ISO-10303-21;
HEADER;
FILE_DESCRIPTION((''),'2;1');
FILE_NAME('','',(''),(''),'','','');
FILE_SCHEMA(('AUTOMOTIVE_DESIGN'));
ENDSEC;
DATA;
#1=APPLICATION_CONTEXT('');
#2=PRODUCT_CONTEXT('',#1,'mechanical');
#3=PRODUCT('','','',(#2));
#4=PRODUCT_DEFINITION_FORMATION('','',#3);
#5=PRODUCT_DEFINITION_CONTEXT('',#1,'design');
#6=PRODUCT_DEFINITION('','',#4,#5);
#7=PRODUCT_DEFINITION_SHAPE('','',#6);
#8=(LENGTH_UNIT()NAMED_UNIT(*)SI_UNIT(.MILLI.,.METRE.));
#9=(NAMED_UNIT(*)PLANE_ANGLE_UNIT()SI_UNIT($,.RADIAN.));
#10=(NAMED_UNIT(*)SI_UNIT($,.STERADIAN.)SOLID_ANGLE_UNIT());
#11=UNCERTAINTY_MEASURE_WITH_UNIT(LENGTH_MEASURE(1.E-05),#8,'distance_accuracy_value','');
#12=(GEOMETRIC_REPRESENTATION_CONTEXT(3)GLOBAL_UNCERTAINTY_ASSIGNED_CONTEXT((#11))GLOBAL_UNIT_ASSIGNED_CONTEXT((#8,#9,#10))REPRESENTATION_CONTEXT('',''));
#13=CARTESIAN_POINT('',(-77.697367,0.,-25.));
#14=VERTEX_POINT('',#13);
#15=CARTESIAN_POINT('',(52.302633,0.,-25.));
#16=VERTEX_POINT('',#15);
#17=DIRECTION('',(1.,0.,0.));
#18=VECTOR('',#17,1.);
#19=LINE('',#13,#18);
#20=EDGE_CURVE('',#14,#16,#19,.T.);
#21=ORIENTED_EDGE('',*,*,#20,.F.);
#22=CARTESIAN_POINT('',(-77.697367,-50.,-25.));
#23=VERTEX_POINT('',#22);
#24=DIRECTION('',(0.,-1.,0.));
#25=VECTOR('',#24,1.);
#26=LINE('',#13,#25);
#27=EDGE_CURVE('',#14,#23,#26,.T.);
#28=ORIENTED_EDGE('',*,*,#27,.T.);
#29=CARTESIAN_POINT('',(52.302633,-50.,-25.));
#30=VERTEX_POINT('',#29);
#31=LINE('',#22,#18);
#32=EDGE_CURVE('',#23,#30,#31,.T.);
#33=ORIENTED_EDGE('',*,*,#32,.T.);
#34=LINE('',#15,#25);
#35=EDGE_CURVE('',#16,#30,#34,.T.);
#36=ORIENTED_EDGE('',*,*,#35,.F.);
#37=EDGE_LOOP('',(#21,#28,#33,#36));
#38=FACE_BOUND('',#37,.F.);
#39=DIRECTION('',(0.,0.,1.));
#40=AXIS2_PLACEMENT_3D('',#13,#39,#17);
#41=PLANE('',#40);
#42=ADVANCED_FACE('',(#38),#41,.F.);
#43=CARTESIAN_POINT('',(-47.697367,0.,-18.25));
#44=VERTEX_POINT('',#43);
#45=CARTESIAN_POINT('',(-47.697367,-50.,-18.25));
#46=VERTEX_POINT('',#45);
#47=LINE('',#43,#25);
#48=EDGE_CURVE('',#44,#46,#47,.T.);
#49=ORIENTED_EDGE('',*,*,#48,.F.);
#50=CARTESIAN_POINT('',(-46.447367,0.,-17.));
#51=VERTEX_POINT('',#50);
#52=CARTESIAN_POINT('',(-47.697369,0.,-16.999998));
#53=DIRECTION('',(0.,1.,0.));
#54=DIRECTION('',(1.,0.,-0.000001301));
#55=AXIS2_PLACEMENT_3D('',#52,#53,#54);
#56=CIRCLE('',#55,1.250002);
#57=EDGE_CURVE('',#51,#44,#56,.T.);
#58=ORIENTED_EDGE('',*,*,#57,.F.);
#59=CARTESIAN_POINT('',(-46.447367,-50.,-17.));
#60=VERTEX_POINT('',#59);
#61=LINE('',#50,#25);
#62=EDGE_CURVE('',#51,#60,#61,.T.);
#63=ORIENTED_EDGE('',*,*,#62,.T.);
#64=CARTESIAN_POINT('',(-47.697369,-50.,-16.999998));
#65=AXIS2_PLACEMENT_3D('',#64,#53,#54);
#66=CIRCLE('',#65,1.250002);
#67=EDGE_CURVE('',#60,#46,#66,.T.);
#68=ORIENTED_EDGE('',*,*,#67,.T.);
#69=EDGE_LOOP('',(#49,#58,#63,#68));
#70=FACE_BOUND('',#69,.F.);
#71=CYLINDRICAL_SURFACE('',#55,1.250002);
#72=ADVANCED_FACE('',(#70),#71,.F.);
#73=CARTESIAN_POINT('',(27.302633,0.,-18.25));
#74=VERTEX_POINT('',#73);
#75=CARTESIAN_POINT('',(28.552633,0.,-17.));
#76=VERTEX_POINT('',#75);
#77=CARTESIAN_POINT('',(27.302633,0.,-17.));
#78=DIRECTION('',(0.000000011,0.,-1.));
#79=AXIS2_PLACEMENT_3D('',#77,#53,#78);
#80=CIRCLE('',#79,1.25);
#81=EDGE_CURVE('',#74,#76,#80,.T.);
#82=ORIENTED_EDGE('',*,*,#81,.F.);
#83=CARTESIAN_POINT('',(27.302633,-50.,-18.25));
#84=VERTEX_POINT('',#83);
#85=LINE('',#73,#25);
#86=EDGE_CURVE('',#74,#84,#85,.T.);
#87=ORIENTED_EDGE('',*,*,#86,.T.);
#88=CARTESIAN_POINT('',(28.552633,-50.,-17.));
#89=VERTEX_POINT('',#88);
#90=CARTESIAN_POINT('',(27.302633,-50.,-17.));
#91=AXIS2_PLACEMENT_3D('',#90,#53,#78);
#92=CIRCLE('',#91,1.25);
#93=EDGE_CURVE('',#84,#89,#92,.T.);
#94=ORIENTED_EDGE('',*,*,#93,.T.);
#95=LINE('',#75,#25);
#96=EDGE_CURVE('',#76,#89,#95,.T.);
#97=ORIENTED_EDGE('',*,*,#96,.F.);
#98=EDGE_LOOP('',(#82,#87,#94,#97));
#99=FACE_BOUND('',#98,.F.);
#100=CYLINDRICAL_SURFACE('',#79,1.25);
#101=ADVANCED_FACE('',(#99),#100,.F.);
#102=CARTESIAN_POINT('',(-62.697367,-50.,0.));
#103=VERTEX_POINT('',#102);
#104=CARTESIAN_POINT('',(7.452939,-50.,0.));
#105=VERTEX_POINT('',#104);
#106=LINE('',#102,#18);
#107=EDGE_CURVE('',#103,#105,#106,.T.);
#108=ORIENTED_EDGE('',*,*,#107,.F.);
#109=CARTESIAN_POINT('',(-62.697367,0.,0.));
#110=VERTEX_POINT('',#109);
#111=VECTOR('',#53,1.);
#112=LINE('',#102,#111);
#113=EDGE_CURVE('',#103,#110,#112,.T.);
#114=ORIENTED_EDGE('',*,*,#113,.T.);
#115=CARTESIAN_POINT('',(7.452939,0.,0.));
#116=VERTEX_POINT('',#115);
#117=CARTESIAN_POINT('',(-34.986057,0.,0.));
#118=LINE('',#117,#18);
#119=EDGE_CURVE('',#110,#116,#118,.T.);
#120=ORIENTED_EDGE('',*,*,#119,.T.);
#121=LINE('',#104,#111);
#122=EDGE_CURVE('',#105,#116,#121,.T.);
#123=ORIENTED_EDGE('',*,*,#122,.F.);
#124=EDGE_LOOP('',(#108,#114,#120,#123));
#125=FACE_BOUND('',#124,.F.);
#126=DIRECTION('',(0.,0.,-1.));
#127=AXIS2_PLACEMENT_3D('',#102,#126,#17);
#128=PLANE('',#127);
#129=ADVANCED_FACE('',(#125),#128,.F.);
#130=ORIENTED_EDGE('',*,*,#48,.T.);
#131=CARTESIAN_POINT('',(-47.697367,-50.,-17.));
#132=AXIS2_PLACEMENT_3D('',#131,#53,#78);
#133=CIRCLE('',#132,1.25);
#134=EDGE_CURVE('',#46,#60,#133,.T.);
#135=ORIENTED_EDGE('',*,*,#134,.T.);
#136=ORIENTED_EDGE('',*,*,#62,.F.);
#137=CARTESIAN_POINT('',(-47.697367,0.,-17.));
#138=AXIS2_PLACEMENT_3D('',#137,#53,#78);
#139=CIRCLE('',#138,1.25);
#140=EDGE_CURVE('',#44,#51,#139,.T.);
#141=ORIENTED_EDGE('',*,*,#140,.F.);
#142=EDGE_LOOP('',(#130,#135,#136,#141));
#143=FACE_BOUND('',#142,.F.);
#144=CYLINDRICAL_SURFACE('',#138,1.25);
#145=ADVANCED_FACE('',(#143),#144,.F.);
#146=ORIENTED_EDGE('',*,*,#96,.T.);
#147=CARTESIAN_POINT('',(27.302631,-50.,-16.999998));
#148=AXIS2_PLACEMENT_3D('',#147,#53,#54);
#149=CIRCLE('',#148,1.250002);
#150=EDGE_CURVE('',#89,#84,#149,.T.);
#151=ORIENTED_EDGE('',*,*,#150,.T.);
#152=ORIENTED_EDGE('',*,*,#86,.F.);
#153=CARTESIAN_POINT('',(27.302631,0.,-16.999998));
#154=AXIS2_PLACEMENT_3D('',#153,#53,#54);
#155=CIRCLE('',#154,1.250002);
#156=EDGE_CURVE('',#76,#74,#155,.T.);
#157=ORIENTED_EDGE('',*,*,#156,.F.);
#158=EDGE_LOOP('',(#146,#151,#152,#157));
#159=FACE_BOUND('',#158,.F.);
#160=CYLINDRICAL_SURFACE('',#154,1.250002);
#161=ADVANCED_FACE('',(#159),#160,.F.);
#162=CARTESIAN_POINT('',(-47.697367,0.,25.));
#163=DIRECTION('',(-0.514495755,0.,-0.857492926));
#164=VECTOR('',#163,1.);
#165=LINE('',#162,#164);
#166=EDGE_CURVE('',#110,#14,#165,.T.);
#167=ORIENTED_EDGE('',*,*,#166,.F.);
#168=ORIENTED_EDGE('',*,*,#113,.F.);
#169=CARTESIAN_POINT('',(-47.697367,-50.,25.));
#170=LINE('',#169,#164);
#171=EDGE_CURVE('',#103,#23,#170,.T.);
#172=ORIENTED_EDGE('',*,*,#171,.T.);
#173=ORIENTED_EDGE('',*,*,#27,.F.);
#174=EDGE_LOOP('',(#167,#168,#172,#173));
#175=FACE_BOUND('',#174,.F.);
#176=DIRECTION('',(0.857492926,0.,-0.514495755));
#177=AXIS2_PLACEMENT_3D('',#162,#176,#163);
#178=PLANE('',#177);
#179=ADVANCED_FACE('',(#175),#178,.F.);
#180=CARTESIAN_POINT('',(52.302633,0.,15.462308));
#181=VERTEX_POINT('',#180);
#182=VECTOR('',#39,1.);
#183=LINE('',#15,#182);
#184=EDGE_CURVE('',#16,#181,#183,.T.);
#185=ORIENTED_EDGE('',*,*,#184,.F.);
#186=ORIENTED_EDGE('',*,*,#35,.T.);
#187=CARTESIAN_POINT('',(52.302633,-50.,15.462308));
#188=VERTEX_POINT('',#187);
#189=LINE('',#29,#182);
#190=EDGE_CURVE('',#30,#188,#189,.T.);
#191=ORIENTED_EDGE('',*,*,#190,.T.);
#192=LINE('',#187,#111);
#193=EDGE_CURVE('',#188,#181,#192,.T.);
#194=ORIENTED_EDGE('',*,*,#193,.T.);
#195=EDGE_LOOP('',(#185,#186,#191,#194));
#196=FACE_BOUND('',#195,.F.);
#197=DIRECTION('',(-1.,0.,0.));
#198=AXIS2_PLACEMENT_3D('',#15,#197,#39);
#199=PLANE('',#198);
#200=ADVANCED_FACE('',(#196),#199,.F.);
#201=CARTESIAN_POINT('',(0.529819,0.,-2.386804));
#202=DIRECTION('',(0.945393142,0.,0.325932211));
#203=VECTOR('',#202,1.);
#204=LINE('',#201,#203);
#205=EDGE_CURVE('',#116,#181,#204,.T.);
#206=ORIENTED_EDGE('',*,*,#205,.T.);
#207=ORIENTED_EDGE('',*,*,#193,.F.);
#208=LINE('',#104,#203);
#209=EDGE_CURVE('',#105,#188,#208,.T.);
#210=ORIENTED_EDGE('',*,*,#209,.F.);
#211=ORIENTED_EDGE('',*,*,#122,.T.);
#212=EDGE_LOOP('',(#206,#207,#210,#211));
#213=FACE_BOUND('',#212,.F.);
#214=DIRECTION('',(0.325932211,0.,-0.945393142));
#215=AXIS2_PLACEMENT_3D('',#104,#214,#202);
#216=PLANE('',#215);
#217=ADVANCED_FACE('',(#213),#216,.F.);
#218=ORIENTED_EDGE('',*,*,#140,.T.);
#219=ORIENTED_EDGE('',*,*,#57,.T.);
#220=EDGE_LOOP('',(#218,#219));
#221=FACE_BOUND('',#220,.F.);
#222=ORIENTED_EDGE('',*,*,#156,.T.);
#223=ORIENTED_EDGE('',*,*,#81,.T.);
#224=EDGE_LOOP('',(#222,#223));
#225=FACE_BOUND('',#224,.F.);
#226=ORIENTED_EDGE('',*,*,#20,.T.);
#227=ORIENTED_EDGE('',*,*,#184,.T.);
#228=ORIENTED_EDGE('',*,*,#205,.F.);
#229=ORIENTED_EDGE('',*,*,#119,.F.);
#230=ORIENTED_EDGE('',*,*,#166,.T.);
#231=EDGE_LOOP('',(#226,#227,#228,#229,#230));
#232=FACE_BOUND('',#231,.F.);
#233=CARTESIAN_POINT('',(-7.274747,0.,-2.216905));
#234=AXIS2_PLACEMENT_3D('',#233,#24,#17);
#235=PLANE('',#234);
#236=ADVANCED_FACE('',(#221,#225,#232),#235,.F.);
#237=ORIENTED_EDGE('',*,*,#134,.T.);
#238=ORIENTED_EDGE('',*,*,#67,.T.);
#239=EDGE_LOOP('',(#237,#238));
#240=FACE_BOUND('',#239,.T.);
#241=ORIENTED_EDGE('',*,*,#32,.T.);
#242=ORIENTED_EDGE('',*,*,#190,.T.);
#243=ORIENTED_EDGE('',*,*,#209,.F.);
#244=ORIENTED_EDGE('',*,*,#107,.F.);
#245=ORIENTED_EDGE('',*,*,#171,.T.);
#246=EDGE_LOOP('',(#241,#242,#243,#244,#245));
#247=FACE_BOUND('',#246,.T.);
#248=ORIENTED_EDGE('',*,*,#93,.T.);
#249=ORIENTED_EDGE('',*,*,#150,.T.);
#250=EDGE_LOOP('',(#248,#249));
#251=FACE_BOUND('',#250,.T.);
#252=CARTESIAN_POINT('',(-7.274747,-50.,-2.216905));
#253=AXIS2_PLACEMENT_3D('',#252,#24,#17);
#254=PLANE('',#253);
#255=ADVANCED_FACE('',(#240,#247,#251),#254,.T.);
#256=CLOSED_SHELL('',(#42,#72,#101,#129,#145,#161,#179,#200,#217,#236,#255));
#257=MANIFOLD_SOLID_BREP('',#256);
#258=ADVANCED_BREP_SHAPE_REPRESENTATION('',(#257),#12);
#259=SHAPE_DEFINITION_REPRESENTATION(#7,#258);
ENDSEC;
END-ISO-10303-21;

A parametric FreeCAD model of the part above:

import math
import FreeCAD as App
import Part
import Sketcher
from FreeCAD import Vector


def add_polygon(sketch, points):
    """Adds a closed chain of lines whose ends are joined by coincident constraints."""
    first, n = sketch.GeometryCount, len(points)
    for a, b in zip(points, points[1:] + points[:1]):
        sketch.addGeometry(Part.LineSegment(App.Vector(*a, 0), App.Vector(*b, 0)), False)
    for i in range(n):
        sketch.addConstraint(Sketcher.Constraint("Coincident", first + i, 2, first + (i + 1) % n, 1))

doc = App.newDocument("Part")
params = doc.addObject("Spreadsheet::Sheet", "Params")
for row, (alias, value) in enumerate([
    ("sketch1_width", "100 mm"),
    ("sketch1_width2", "130 mm"),
    ("sketch1_height", "50 mm"),
    ("sketch1_radius", "1.250002 mm"),
    ("pad1_length", "50 mm"),
    ("sketch2_width", "100 mm"),
], start=1):
    params.set(f"A{row}", alias)
    params.set(f"B{row}", "=" + value)
    params.setAlias(f"B{row}", alias)

body = doc.addObject("PartDesign::Body", "Body")

# Sketch on XZ plane
sketch1 = doc.addObject("Sketcher::SketchObject", "Sketch")
body.addObject(sketch1)
sketch1.AttachmentSupport = (doc.XZ_Plane, [""])
sketch1.MapMode = "FlatFace"
add_polygon(sketch1, [(52.3, -25), (52.3, 25), (-47.7, 25), (-77.7, -25)])  # lines 0-3
sketch1.addGeometry(Part.ArcOfCircle(Part.Circle(Vector(-47.7, -17, 0), Vector(0, 0, 1), 1.3), math.radians(-90), math.radians(0)), False)  # 4
sketch1.addGeometry(Part.ArcOfCircle(Part.Circle(Vector(-47.7, -17, 0), Vector(0, 0, 1), 1.3), math.radians(0), math.radians(270)), False)  # 5
sketch1.addGeometry(Part.ArcOfCircle(Part.Circle(Vector(27.3, -17, 0), Vector(0, 0, 1), 1.3), math.radians(-90), math.radians(0)), False)  # 6
sketch1.addGeometry(Part.ArcOfCircle(Part.Circle(Vector(27.3, -17, 0), Vector(0, 0, 1), 1.3), math.radians(0), math.radians(270)), False)  # 7
sketch1.addConstraint(Sketcher.Constraint("Tangent", 4, 1, 5, 2))
sketch1.addConstraint(Sketcher.Constraint("Coincident", 5, 1, 4, 2))
sketch1.addConstraint(Sketcher.Constraint("Tangent", 6, 1, 7, 2))
sketch1.addConstraint(Sketcher.Constraint("Coincident", 7, 1, 6, 2))
sketch1.addConstraint(Sketcher.Constraint("Vertical", 0))
sketch1.addConstraint(Sketcher.Constraint("Horizontal", 1))
sketch1.addConstraint(Sketcher.Constraint("Horizontal", 3))
sketch1.addConstraint(Sketcher.Constraint("Equal", 5, 6))
sketch1.addConstraint(Sketcher.Constraint("Horizontal", 5, 3, 6, 3))
sketch1.addConstraint(Sketcher.Constraint("Horizontal", 7, 3, 5, 1))
sketch1.addConstraint(Sketcher.Constraint("Horizontal", 5, 1, 7, 1))
sketch1.addConstraint(Sketcher.Constraint("Vertical", 5, 3, 1, 2))
sketch1.addConstraint(Sketcher.Constraint("Vertical", 1, 2, 4, 1))
sketch1.addConstraint(Sketcher.Constraint("Vertical", 7, 3, 6, 1))
sketch1.addConstraint(Sketcher.Constraint("DistanceX", 1, 2, 1, 1, 100.0))
sketch1.addConstraint(Sketcher.Constraint("DistanceX", 3, 1, 3, 2, 130.0))
sketch1.addConstraint(Sketcher.Constraint("DistanceY", 0, 1, 0, 2, 50.0))
sketch1.addConstraint(Sketcher.Constraint("Radius", 4, 1.250002))
sketch1.addConstraint(Sketcher.Constraint("DistanceY", 4, 3, -1, 1, 16.999998))
sketch1.addConstraint(Sketcher.Constraint("DistanceY", -1, 1, 0, 2, 25.0))
sketch1.addConstraint(Sketcher.Constraint("DistanceX", 5, 3, 6, 3, 74.999998))
sketch1.addConstraint(Sketcher.Constraint("DistanceX", 4, 3, -1, 1, 47.697369))
sketch1.setExpression("Constraints[18]", "Params.sketch1_width")
sketch1.setExpression("Constraints[19]", "Params.sketch1_width2")
sketch1.setExpression("Constraints[20]", "Params.sketch1_height")
sketch1.setExpression("Constraints[21]", "Params.sketch1_radius")
pad1 = doc.addObject("PartDesign::Pad", "Pad")
body.addObject(pad1)
pad1.Profile = sketch1
pad1.setExpression("Length", "Params.pad1_length")

# Sketch on XZ plane
sketch2 = doc.addObject("Sketcher::SketchObject", "Sketch001")
body.addObject(sketch2)
sketch2.AttachmentSupport = (doc.XZ_Plane, [""])
sketch2.MapMode = "FlatFace"
sketch2.AttachmentOffset = App.Placement(Vector(0, 0, 50), App.Rotation())
add_polygon(sketch2, [(-48, 25), (-63, 0), (7, 0), (52, 15), (52, 25)])  # lines 0-4
sketch2.addConstraint(Sketcher.Constraint("Horizontal", 1))
sketch2.addConstraint(Sketcher.Constraint("Vertical", 3))
sketch2.addConstraint(Sketcher.Constraint("Horizontal", 4))
sketch2.addConstraint(Sketcher.Constraint("PointOnObject", 0, 2, -1))
sketch2.addConstraint(Sketcher.Constraint("DistanceX", 4, 2, 4, 1, 100.0))
sketch2.addConstraint(Sketcher.Constraint("DistanceY", -1, 1, 3, 2, 25.0))
sketch2.addConstraint(Sketcher.Constraint("DistanceX", 0, 2, 2, 2, 115.0))
sketch2.addConstraint(Sketcher.Constraint("DistanceX", 1, 1, 1, 2, 70.150306))
sketch2.addConstraint(Sketcher.Constraint("DistanceY", 3, 1, 3, 2, 9.537692))
sketch2.addConstraint(Sketcher.Constraint("DistanceX", -1, 1, 1, 2, 7.452939))
sketch2.setExpression("Constraints[9]", "Params.sketch2_width")
pocket1 = doc.addObject("PartDesign::Pocket", "Pocket")
body.addObject(pocket1)
pocket1.Profile = sketch2
pocket1.Type = "ThroughAll"

doc.recompute()
